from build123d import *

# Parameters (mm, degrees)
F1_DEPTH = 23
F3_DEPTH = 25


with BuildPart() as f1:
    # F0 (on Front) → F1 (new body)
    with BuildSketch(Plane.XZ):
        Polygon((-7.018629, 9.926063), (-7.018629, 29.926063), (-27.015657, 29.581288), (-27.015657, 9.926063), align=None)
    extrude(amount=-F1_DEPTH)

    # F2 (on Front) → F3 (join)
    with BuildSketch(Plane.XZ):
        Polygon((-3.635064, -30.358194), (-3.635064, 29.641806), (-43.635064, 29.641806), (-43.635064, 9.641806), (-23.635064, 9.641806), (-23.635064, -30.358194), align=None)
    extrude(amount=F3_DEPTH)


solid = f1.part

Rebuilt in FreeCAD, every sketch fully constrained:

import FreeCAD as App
import Part
import Sketcher
from FreeCAD import Vector

doc = App.newDocument("Part")
params = doc.addObject("Spreadsheet::Sheet", "Params")
for row, (alias, value) in enumerate([
    ("sketch1_height", "20 mm"),
    ("sketch1_length", "20 mm"),
    ("pad1_length", "23 mm"),
    ("sketch2_width", "40 mm"),
    ("pad2_length", "25 mm"),
], start=1):
    params.set(f"A{row}", alias)
    params.set(f"B{row}", "=" + value)
    params.setAlias(f"B{row}", alias)

body = doc.addObject("PartDesign::Body", "Body")

sketch1 = body.newObject("Sketcher::SketchObject", "Sketch")
sketch1.AttachmentSupport = (doc.getObject("XZ_Plane"), [""])
sketch1.MapMode = "FlatFace"
sketch1.addGeometry(Part.LineSegment(Vector(-7.018629, 9.926063, 0), Vector(-7.018629, 29.926063, 0)), False)
sketch1.addGeometry(Part.LineSegment(Vector(-7.018629, 29.926063, 0), Vector(-27.015657, 29.581288, 0)), False)
sketch1.addGeometry(Part.LineSegment(Vector(-27.015657, 29.581288, 0), Vector(-27.015657, 9.926063, 0)), False)
sketch1.addGeometry(Part.LineSegment(Vector(-27.015657, 9.926063, 0), Vector(-7.018629, 9.926063, 0)), False)
sketch1.addConstraint(Sketcher.Constraint("Coincident", 0, 2, 1, 1))
sketch1.addConstraint(Sketcher.Constraint("Coincident", 1, 2, 2, 1))
sketch1.addConstraint(Sketcher.Constraint("Coincident", 2, 2, 3, 1))
sketch1.addConstraint(Sketcher.Constraint("Coincident", 3, 2, 0, 1))
sketch1.addConstraint(Sketcher.Constraint("Vertical", 0))
sketch1.addConstraint(Sketcher.Constraint("Vertical", 2))
sketch1.addConstraint(Sketcher.Constraint("Horizontal", 3))
sketch1.addConstraint(Sketcher.Constraint("DistanceY", 0, 1, 0, 2, 20.0))
sketch1.addConstraint(Sketcher.Constraint("Distance", 1, 20.0))
sketch1.addConstraint(Sketcher.Constraint("DistanceX", 3, 1, 3, 2, 19.997028))
sketch1.addConstraint(Sketcher.Constraint("DistanceX", 0, 2, -1, 1, 7.018629))
sketch1.addConstraint(Sketcher.Constraint("DistanceY", -1, 1, 1, 2, 29.581288))
sketch1.setExpression("Constraints[7]", "Params.sketch1_height")
sketch1.setExpression("Constraints[8]", "Params.sketch1_length")
pad1 = body.newObject("PartDesign::Pad", "Pad")
pad1.Profile = sketch1
pad1.setExpression("Length", "Params.pad1_length")
pad1.Reversed = True

sketch2 = body.newObject("Sketcher::SketchObject", "Sketch001")
sketch2.AttachmentSupport = (doc.getObject("XZ_Plane"), [""])
sketch2.MapMode = "FlatFace"
sketch2.addGeometry(Part.LineSegment(Vector(-3.635064, -30.358194, 0), Vector(-3.635064, 29.641806, 0)), False)
sketch2.addGeometry(Part.LineSegment(Vector(-3.635064, 29.641806, 0), Vector(-43.635064, 29.641806, 0)), False)
sketch2.addGeometry(Part.LineSegment(Vector(-43.635064, 29.641806, 0), Vector(-43.635064, 9.641806, 0)), False)
sketch2.addGeometry(Part.LineSegment(Vector(-43.635064, 9.641806, 0), Vector(-23.635064, 9.641806, 0)), False)
sketch2.addGeometry(Part.LineSegment(Vector(-23.635064, 9.641806, 0), Vector(-23.635064, -30.358194, 0)), False)
sketch2.addGeometry(Part.LineSegment(Vector(-23.635064, -30.358194, 0), Vector(-3.635064, -30.358194, 0)), False)
sketch2.addConstraint(Sketcher.Constraint("Coincident", 0, 2, 1, 1))
sketch2.addConstraint(Sketcher.Constraint("Coincident", 1, 2, 2, 1))
sketch2.addConstraint(Sketcher.Constraint("Coincident", 2, 2, 3, 1))
sketch2.addConstraint(Sketcher.Constraint("Coincident", 3, 2, 4, 1))
sketch2.addConstraint(Sketcher.Constraint("Coincident", 4, 2, 5, 1))
sketch2.addConstraint(Sketcher.Constraint("Coincident", 5, 2, 0, 1))
sketch2.addConstraint(Sketcher.Constraint("Vertical", 0))
sketch2.addConstraint(Sketcher.Constraint("Horizontal", 1))
sketch2.addConstraint(Sketcher.Constraint("Vertical", 2))
sketch2.addConstraint(Sketcher.Constraint("Horizontal", 3))
sketch2.addConstraint(Sketcher.Constraint("Vertical", 4))
sketch2.addConstraint(Sketcher.Constraint("Horizontal", 5))
sketch2.addConstraint(Sketcher.Constraint("Equal", 3, 5))
sketch2.addConstraint(Sketcher.Constraint("Equal", 5, 2))
sketch2.addConstraint(Sketcher.Constraint("Equal", 1, 4))
sketch2.addConstraint(Sketcher.Constraint("DistanceX", 1, 2, 1, 1, 40.0))
sketch2.addConstraint(Sketcher.Constraint("DistanceX", 0, 2, -1, 1, 3.635064))
sketch2.addConstraint(Sketcher.Constraint("DistanceY", -1, 1, 0, 2, 29.641806))
sketch2.setExpression("Constraints[15]", "Params.sketch2_width")
pad2 = body.newObject("PartDesign::Pad", "Pad001")
pad2.Profile = sketch2
pad2.setExpression("Length", "Params.pad2_length")

doc.recompute()
